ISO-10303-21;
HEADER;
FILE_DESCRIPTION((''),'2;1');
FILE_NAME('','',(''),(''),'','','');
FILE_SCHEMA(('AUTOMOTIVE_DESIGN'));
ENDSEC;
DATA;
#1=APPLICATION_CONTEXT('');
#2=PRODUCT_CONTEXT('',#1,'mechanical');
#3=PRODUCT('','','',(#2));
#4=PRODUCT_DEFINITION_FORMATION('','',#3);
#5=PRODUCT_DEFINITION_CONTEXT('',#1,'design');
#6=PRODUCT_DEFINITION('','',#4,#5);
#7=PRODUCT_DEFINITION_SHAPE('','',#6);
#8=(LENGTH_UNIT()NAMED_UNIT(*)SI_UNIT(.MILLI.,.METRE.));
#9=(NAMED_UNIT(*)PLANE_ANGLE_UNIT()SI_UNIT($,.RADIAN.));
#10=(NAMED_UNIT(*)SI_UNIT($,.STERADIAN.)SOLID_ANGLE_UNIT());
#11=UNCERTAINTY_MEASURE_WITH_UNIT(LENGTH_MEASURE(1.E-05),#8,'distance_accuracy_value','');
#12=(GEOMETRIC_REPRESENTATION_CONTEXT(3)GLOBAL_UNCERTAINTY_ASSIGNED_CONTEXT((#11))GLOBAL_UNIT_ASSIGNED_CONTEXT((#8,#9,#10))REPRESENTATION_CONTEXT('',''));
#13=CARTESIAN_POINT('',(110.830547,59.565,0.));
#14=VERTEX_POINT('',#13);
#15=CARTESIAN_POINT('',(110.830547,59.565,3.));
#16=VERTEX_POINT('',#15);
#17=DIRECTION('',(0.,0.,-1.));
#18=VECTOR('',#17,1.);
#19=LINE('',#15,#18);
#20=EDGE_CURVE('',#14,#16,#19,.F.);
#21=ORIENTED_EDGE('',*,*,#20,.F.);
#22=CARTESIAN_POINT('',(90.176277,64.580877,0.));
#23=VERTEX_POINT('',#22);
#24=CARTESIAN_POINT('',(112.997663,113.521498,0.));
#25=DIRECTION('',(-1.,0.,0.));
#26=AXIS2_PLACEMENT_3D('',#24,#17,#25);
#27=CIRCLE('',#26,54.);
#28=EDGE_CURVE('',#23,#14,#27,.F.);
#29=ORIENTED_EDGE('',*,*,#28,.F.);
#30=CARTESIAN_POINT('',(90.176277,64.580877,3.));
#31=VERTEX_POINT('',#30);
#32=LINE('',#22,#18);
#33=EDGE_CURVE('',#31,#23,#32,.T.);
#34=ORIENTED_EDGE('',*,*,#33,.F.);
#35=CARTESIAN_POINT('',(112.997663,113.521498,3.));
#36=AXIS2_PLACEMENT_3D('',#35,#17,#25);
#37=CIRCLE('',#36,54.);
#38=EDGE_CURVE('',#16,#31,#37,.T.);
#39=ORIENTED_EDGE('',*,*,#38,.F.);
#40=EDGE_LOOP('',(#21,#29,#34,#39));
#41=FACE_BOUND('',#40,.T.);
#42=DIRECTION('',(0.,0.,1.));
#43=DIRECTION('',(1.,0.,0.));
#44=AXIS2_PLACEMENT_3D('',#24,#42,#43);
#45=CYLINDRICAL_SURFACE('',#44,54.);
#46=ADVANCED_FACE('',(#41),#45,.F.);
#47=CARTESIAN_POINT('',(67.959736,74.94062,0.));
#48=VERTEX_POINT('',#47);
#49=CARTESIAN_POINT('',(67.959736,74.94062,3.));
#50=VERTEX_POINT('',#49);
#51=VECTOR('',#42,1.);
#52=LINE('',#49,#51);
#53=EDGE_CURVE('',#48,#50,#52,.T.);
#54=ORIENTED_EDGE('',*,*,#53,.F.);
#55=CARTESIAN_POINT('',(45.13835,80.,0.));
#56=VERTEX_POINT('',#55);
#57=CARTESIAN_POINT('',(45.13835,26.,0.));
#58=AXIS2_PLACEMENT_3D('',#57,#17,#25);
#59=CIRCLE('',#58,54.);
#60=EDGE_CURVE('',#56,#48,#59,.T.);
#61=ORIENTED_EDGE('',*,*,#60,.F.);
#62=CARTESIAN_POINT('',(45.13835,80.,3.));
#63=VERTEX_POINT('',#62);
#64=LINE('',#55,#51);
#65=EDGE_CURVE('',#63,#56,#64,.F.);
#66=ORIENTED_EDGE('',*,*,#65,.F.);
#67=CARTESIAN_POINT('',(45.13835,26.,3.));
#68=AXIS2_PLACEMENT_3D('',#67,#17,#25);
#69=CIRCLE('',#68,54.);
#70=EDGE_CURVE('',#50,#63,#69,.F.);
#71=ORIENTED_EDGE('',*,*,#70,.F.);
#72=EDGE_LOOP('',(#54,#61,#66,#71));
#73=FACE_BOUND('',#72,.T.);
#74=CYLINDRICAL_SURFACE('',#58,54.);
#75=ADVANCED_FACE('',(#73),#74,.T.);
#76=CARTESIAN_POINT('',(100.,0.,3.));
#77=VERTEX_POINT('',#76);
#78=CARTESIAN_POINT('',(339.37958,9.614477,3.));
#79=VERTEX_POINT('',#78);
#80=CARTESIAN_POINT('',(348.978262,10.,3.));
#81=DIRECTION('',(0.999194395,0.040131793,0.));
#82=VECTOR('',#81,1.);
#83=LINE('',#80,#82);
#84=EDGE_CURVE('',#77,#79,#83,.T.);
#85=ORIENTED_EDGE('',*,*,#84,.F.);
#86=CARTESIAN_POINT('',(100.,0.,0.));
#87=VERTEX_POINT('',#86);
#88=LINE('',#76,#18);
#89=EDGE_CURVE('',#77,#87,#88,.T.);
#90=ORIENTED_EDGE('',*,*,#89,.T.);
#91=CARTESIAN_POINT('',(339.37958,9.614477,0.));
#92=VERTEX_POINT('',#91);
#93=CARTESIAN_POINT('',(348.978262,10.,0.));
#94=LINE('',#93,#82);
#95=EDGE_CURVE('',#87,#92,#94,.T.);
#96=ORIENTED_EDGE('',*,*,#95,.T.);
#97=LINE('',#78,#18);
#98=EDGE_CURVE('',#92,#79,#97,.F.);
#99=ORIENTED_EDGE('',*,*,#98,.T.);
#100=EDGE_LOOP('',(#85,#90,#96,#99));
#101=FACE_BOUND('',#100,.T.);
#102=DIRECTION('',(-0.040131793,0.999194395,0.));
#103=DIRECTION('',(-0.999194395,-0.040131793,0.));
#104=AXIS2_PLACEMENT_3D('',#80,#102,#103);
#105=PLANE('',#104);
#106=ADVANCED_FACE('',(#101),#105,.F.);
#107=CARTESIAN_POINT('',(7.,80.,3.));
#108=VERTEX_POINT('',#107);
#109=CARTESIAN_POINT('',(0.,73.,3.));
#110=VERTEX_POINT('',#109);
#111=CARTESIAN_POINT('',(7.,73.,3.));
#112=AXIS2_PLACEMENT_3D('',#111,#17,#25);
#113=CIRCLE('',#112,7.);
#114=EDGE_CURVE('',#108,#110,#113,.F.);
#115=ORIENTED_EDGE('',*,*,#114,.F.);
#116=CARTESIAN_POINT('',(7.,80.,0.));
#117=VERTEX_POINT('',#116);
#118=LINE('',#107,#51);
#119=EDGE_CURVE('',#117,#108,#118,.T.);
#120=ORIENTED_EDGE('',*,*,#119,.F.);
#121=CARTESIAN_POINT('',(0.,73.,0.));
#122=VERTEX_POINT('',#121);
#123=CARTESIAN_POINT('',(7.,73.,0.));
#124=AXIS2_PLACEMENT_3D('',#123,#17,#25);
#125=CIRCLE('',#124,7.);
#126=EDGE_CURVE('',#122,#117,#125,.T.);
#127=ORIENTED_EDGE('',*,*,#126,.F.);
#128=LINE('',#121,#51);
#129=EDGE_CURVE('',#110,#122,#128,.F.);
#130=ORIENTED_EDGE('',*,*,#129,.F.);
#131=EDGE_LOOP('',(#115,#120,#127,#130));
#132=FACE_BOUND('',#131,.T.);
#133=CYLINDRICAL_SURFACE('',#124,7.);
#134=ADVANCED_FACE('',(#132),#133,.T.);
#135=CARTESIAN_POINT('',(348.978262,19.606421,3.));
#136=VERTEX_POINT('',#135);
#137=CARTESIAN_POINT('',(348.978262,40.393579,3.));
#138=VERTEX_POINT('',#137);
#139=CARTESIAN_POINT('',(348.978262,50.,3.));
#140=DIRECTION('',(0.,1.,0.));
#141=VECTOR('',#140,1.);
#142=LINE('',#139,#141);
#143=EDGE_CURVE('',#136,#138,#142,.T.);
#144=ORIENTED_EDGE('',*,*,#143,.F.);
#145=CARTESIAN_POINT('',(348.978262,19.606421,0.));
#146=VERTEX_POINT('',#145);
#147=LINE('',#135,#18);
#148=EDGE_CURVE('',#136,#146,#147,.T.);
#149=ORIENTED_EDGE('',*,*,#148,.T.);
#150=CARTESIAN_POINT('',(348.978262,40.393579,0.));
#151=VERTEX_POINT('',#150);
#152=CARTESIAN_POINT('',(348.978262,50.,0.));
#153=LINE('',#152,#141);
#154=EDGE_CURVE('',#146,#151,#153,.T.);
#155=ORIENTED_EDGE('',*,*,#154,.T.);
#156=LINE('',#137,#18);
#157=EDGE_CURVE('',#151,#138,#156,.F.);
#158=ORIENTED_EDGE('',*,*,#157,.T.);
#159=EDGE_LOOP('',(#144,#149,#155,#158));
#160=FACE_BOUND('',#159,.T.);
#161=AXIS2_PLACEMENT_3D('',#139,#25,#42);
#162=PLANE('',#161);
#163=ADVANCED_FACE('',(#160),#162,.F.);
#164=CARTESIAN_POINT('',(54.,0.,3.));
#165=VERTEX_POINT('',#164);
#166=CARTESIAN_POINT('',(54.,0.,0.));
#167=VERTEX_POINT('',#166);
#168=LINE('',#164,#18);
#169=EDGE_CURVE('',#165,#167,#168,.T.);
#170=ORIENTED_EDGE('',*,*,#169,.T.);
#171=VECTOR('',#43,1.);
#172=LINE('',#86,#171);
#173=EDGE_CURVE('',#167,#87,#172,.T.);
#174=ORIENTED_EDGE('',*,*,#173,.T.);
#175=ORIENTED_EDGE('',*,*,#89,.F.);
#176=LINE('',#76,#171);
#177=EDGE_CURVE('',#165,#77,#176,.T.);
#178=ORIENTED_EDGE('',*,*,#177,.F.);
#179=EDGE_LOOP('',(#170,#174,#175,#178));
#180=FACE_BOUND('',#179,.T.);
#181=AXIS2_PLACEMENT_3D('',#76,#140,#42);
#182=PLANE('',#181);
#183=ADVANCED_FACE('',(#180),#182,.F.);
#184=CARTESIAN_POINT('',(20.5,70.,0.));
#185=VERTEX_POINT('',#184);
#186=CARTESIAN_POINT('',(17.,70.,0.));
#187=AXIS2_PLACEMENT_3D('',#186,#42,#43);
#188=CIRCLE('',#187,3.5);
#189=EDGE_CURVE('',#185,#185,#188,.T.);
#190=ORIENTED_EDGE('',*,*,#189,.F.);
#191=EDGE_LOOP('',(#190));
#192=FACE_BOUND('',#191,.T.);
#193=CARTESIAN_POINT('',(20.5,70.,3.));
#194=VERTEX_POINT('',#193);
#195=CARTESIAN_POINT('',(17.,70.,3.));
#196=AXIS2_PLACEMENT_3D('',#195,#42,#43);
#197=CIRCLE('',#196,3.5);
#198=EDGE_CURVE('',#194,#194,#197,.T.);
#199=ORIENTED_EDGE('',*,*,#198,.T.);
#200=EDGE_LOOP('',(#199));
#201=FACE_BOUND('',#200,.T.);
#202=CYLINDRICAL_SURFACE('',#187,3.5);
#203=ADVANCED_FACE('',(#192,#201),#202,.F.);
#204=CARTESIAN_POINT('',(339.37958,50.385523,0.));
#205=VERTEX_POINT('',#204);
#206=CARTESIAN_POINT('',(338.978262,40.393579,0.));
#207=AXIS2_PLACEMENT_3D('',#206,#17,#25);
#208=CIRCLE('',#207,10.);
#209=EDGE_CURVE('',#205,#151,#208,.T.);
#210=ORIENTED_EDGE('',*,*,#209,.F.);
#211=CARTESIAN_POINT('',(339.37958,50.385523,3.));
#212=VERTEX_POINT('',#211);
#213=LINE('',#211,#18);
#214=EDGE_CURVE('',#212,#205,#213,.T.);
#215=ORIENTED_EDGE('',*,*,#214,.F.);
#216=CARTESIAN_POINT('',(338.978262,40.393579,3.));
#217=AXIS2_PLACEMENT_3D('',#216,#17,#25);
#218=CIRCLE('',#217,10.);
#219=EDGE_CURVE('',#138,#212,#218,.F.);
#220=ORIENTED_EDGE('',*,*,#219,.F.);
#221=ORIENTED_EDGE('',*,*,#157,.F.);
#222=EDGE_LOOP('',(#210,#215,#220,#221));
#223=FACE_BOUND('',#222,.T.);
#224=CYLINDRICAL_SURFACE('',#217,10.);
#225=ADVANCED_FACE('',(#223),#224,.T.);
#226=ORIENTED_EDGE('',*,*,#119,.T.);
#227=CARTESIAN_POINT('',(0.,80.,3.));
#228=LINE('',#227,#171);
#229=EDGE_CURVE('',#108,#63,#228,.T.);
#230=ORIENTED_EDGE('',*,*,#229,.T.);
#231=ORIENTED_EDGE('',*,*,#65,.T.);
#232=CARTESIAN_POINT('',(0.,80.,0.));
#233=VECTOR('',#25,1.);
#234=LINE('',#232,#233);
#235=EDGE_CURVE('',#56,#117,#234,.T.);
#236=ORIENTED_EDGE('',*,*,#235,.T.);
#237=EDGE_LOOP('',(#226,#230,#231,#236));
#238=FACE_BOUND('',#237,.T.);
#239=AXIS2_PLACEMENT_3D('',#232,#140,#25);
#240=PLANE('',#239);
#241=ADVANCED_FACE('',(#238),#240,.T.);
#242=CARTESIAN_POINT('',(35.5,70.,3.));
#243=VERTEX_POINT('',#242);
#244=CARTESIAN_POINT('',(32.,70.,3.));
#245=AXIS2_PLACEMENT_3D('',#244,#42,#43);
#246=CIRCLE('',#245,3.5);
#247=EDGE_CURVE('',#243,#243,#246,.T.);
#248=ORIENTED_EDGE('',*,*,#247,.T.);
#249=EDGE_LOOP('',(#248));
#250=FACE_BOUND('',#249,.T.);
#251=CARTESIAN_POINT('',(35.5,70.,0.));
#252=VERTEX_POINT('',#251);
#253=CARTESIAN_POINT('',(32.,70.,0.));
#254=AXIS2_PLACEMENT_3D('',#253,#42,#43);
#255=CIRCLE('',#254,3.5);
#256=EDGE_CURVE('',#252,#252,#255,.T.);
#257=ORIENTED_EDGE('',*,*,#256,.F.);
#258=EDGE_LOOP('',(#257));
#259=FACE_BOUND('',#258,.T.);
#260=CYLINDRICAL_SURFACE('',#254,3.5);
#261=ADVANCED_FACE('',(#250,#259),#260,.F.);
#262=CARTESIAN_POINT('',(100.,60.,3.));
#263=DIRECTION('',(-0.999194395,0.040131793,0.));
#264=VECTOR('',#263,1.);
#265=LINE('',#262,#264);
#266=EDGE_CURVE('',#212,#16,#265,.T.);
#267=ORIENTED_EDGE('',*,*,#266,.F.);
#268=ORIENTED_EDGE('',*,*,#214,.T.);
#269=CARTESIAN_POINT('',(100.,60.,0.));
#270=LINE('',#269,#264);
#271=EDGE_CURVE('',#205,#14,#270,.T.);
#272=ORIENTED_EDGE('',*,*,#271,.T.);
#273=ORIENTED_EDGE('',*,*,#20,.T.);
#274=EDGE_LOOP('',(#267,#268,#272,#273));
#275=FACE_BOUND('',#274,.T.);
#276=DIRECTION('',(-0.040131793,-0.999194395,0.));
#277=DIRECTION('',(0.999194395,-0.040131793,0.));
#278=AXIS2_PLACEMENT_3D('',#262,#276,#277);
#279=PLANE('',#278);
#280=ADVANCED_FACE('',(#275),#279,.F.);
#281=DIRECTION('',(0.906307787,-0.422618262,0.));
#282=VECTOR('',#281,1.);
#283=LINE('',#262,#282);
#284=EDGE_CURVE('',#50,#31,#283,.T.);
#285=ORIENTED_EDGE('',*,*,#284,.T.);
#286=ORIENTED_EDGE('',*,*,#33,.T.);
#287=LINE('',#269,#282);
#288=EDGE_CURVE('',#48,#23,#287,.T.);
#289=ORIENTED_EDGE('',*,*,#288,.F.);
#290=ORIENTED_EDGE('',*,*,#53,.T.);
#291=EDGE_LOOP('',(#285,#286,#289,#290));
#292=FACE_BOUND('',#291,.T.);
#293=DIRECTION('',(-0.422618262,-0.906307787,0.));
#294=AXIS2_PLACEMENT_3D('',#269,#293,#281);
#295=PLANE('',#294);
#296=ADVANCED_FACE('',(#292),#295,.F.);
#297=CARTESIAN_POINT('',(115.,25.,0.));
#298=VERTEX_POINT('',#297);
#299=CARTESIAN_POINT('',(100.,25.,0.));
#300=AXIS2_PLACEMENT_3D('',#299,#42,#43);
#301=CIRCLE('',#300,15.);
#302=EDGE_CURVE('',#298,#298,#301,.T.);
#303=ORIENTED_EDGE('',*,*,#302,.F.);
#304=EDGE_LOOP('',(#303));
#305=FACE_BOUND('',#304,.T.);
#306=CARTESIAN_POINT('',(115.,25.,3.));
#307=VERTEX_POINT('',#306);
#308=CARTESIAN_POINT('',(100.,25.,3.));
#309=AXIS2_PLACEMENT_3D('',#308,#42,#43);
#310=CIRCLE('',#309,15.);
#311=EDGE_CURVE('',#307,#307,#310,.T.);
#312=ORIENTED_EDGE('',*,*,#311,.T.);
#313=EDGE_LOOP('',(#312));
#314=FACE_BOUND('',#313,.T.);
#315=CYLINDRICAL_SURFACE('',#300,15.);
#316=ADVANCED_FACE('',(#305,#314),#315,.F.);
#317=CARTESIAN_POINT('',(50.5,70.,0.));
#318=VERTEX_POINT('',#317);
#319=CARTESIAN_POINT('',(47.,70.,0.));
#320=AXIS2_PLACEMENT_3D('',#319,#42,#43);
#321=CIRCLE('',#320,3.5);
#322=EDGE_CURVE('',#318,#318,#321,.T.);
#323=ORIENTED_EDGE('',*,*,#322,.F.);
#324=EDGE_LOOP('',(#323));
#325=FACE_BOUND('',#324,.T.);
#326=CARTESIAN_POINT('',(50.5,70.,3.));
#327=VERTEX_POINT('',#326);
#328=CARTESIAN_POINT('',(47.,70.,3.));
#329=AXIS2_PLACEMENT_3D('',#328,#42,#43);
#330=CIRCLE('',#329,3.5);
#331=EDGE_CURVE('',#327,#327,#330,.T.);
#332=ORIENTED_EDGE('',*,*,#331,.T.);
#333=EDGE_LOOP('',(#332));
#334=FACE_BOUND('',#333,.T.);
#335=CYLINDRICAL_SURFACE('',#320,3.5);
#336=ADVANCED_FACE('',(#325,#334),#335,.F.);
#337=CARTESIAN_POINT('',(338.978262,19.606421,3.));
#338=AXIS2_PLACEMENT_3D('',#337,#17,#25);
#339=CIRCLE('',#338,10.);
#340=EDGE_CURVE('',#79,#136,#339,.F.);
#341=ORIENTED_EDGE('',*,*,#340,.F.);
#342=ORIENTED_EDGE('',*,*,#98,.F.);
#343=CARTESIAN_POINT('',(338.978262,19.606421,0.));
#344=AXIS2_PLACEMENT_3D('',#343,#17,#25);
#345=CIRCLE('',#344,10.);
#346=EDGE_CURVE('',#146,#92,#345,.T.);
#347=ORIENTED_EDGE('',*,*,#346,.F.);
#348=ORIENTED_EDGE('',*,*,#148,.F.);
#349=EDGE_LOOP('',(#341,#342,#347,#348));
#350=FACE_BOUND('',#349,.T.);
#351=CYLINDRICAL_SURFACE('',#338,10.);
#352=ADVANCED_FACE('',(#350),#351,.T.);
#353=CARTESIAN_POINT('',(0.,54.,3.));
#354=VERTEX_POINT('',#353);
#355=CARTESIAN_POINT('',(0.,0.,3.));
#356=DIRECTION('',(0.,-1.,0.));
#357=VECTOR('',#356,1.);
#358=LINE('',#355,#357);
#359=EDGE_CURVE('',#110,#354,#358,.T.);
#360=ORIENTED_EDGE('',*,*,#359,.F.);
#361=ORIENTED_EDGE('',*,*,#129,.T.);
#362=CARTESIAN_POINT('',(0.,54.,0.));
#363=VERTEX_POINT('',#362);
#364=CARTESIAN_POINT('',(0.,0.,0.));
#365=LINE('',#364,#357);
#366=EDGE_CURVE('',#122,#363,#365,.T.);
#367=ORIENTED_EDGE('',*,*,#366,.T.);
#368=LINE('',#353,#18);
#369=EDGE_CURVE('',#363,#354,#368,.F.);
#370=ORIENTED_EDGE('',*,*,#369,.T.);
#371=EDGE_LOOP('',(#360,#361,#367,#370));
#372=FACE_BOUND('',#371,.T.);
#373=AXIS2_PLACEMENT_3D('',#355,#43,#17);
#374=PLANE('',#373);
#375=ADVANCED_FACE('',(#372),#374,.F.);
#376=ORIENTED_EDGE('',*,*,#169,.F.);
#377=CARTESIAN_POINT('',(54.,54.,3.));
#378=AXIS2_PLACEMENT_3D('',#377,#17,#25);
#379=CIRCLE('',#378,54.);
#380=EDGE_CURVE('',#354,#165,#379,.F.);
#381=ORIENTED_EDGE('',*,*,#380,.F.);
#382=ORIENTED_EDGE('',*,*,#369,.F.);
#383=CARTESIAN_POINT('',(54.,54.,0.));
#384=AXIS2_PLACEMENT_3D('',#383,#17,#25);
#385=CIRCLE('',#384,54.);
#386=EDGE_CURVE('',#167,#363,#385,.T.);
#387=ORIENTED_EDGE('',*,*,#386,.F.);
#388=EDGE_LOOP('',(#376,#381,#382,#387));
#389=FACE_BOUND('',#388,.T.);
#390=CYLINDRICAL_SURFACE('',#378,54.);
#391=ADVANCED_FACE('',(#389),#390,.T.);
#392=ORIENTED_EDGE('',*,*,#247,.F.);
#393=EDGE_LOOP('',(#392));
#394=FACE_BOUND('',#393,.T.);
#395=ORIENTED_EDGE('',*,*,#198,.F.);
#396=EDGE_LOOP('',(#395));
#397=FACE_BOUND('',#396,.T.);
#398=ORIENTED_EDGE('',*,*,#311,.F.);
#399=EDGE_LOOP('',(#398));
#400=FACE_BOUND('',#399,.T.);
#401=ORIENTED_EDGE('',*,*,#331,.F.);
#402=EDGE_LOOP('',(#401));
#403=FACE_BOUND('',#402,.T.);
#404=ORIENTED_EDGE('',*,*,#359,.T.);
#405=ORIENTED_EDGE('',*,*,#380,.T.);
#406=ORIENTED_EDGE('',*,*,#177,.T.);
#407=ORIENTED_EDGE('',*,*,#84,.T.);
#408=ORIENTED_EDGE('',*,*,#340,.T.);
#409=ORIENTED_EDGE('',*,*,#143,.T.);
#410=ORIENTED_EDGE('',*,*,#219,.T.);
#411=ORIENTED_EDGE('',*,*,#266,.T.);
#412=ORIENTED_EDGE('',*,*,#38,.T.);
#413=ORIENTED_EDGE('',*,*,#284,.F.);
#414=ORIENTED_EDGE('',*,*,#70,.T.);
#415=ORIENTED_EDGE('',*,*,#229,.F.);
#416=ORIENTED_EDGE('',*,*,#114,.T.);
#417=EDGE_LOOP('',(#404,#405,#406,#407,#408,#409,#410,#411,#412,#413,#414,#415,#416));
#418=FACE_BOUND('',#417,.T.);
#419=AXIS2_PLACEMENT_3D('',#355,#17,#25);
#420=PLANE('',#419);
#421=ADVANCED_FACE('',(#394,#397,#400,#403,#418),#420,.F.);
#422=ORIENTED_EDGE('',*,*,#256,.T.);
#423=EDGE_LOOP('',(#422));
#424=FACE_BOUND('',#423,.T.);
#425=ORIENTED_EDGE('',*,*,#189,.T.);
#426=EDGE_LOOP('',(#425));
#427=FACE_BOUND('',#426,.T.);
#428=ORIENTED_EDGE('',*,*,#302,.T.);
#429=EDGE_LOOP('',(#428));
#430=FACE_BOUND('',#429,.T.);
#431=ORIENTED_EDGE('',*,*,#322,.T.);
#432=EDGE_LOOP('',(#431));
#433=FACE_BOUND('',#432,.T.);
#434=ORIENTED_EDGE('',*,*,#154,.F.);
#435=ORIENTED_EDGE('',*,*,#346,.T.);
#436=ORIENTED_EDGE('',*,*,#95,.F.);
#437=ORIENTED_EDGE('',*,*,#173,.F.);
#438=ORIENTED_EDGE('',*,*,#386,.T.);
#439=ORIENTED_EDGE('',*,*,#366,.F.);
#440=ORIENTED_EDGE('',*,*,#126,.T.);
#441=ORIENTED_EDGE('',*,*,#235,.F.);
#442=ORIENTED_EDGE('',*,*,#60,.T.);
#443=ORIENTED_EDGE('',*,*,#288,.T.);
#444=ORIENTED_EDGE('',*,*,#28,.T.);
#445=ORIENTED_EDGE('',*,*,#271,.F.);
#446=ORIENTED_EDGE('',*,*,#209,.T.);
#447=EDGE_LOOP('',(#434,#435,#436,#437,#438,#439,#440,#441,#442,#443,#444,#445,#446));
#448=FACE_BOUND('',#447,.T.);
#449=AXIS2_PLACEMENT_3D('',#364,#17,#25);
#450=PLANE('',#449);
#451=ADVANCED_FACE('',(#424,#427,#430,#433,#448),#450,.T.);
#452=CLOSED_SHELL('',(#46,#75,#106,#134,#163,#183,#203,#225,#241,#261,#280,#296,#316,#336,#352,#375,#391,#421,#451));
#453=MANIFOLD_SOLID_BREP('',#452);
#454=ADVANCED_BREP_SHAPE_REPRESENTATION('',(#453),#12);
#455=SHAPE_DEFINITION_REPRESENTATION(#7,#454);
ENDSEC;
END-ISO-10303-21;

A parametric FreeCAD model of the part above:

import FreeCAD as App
import Part
import Sketcher

V = App.Vector
Q = App.Units.Quantity


def edges_at(feature, points):
    """Names of the edges that pass closest to the given points."""
    edges = feature.Shape.Edges
    near = lambda p: min(range(len(edges)), key=lambda i: edges[i].distToShape(Part.Vertex(*p))[0])
    return sorted({f"Edge{near(p) + 1}" for p in points})


def add_polygon(sketch, points):
    """Adds a closed chain of lines whose ends are joined by coincident constraints."""
    first, n = sketch.GeometryCount, len(points)
    for a, b in zip(points, points[1:] + points[:1]):
        sketch.addGeometry(Part.LineSegment(App.Vector(*a, 0), App.Vector(*b, 0)), False)
    for i in range(n):
        sketch.addConstraint(Sketcher.Constraint("Coincident", first + i, 2, first + (i + 1) % n, 1))

doc = App.newDocument("Part")
body = doc.addObject("PartDesign::Body", "Body")

# Sketch on XY plane
sketch1 = body.newObject("Sketcher::SketchObject", "Sketch")
sketch1.AttachmentSupport = (doc.getObject("XY_Plane"), [""])
sketch1.MapMode = "FlatFace"
add_polygon(sketch1, [(0, 60), (0, 0), (100, 0), (349, 10), (349, 50), (100, 60)])  # lines 0-5
sketch1.addConstraint([
    Sketcher.Constraint("Vertical", 0),
    Sketcher.Constraint("Horizontal", 1),
    Sketcher.Constraint("Vertical", 3),
    Sketcher.Constraint("Horizontal", 5),
    Sketcher.Constraint("Coincident", 0, 2, -1, 1),
    Sketcher.Constraint("Vertical", 1, 2, 4, 2),
    Sketcher.Constraint("Equal", 2, 4),
    Sketcher.Constraint("DistanceX", 1, 1, 1, 2, 100.0),
    Sketcher.Constraint("DistanceY", 0, 2, 0, 1, 60.0),
    Sketcher.Constraint("DistanceY", 3, 1, 3, 2, 40.0),
    Sketcher.Constraint("Angle", 2, Q("2.3 deg")),
])
pad1 = body.newObject("PartDesign::Pad", "Pad")
pad1.Profile = sketch1
pad1.Length = 3

# Sketch on XY plane
sketch2 = body.newObject("Sketcher::SketchObject", "Sketch001")
sketch2.AttachmentSupport = (doc.getObject("XY_Plane"), [""])
sketch2.MapMode = "FlatFace"
sketch2.AttachmentOffset = App.Placement(V(0, 0, 3), App.Rotation())
sketch2.addGeometry(Part.Circle(V(100, 25, 0), V(0, 0, 1), 15), False)
sketch2.addConstraint([
    Sketcher.Constraint("Diameter", 0, 30.0),
    Sketcher.Constraint("DistanceX", -1, 1, 0, 3, 100.0),
    Sketcher.Constraint("DistanceY", -1, 1, 0, 3, 25.0),
])
pocket1 = body.newObject("PartDesign::Pocket", "Pocket")
pocket1.Profile = sketch2
pocket1.Length = 3

# Sketch on XZ plane
sketch3 = body.newObject("Sketcher::SketchObject", "Sketch002")
sketch3.AttachmentSupport = (doc.getObject("XZ_Plane"), [""])
sketch3.MapMode = "FlatFace"
sketch3.AttachmentOffset = App.Placement(V(0, 0, -60), App.Rotation())
add_polygon(sketch3, [(0, 0), (0, 3), (100, 3), (100, 0)])  # lines 0-3
sketch3.addConstraint([
    Sketcher.Constraint("Vertical", 0),
    Sketcher.Constraint("Horizontal", 1),
    Sketcher.Constraint("Vertical", 2),
    Sketcher.Constraint("Horizontal", 3),
    Sketcher.Constraint("Coincident", 3, 2, -1, 1),
    Sketcher.Constraint("DistanceX", 1, 1, 1, 2, 100.0),
    Sketcher.Constraint("DistanceY", 0, 1, 0, 2, 3.0),
])
pad2 = body.newObject("PartDesign::Pad", "Pad001")
pad2.Profile = sketch3
pad2.Length = 20
pad2.Reversed = True

# Sketch on XY plane
sketch4 = body.newObject("Sketcher::SketchObject", "Sketch003")
sketch4.AttachmentSupport = (doc.getObject("XY_Plane"), [""])
sketch4.MapMode = "FlatFace"
sketch4.AttachmentOffset = App.Placement(V(0, 0, 3), App.Rotation())
sketch4.addGeometry([
    Part.Circle(V(47, 70, 0), V(0, 0, 1), 3.5),
    Part.Circle(V(32, 70, 0), V(0, 0, 1), 3.5),
    Part.Circle(V(17, 70, 0), V(0, 0, 1), 3.5),
], False)
sketch4.addConstraint([
    Sketcher.Constraint("Equal", 0, 1),
    Sketcher.Constraint("Equal", 1, 2),
    Sketcher.Constraint("Horizontal", 0, 3, 1, 3),
    Sketcher.Constraint("Horizontal", 1, 3, 2, 3),
    Sketcher.Constraint("Diameter", 0, 7.0),
    Sketcher.Constraint("DistanceX", -1, 1, 0, 3, 47.0),
    Sketcher.Constraint("DistanceY", -1, 1, 0, 3, 70.0),
    Sketcher.Constraint("DistanceX", -1, 1, 1, 3, 32.0),
    Sketcher.Constraint("DistanceX", -1, 1, 2, 3, 17.0),
])
pocket2 = body.newObject("PartDesign::Pocket", "Pocket001")
pocket2.Profile = sketch4
pocket2.Length = 3

# Sketch on XY plane
sketch5 = body.newObject("Sketcher::SketchObject", "Sketch004")
sketch5.AttachmentSupport = (doc.getObject("XY_Plane"), [""])
sketch5.MapMode = "FlatFace"
sketch5.AttachmentOffset = App.Placement(V(0, 0, 3), App.Rotation())
add_polygon(sketch5, [(57, 80), (100, 60), (100, 80)])  # lines 0-2
sketch5.addConstraint([
    Sketcher.Constraint("Vertical", 1),
    Sketcher.Constraint("Horizontal", 2),
    Sketcher.Constraint("DistanceY", 1, 1, 1, 2, 20.0),
    Sketcher.Constraint("Angle", 0, Q("-25 deg")),
    Sketcher.Constraint("DistanceX", -1, 1, 0, 2, 100.0),
    Sketcher.Constraint("DistanceY", -1, 1, 0, 2, 60.0),
])
pocket3 = body.newObject("PartDesign::Pocket", "Pocket002")
pocket3.Profile = sketch5
pocket3.Length = 3
doc.recompute()

fillet = body.newObject("PartDesign::Fillet", "Fillet")
fillet.Base = (pocket3, edges_at(pocket3, [(100, 60, 1.5), (57.11, 80, 1.5)]))
fillet.Radius = 54
doc.recompute()

fillet2 = body.newObject("PartDesign::Fillet", "Fillet001")
fillet2.Base = (fillet, edges_at(fillet, [(0, 0, 1.5)]))
fillet2.Radius = 54
doc.recompute()

fillet3 = body.newObject("PartDesign::Fillet", "Fillet002")
fillet3.Base = (fillet2, edges_at(fillet2, [(348.978, 50, 1.5), (348.978, 10, 1.5)]))
fillet3.Radius = 10
doc.recompute()

fillet4 = body.newObject("PartDesign::Fillet", "Fillet003")
fillet4.Base = (fillet3, edges_at(fillet3, [(0, 80, 1.5)]))
fillet4.Radius = 7

doc.recompute()
